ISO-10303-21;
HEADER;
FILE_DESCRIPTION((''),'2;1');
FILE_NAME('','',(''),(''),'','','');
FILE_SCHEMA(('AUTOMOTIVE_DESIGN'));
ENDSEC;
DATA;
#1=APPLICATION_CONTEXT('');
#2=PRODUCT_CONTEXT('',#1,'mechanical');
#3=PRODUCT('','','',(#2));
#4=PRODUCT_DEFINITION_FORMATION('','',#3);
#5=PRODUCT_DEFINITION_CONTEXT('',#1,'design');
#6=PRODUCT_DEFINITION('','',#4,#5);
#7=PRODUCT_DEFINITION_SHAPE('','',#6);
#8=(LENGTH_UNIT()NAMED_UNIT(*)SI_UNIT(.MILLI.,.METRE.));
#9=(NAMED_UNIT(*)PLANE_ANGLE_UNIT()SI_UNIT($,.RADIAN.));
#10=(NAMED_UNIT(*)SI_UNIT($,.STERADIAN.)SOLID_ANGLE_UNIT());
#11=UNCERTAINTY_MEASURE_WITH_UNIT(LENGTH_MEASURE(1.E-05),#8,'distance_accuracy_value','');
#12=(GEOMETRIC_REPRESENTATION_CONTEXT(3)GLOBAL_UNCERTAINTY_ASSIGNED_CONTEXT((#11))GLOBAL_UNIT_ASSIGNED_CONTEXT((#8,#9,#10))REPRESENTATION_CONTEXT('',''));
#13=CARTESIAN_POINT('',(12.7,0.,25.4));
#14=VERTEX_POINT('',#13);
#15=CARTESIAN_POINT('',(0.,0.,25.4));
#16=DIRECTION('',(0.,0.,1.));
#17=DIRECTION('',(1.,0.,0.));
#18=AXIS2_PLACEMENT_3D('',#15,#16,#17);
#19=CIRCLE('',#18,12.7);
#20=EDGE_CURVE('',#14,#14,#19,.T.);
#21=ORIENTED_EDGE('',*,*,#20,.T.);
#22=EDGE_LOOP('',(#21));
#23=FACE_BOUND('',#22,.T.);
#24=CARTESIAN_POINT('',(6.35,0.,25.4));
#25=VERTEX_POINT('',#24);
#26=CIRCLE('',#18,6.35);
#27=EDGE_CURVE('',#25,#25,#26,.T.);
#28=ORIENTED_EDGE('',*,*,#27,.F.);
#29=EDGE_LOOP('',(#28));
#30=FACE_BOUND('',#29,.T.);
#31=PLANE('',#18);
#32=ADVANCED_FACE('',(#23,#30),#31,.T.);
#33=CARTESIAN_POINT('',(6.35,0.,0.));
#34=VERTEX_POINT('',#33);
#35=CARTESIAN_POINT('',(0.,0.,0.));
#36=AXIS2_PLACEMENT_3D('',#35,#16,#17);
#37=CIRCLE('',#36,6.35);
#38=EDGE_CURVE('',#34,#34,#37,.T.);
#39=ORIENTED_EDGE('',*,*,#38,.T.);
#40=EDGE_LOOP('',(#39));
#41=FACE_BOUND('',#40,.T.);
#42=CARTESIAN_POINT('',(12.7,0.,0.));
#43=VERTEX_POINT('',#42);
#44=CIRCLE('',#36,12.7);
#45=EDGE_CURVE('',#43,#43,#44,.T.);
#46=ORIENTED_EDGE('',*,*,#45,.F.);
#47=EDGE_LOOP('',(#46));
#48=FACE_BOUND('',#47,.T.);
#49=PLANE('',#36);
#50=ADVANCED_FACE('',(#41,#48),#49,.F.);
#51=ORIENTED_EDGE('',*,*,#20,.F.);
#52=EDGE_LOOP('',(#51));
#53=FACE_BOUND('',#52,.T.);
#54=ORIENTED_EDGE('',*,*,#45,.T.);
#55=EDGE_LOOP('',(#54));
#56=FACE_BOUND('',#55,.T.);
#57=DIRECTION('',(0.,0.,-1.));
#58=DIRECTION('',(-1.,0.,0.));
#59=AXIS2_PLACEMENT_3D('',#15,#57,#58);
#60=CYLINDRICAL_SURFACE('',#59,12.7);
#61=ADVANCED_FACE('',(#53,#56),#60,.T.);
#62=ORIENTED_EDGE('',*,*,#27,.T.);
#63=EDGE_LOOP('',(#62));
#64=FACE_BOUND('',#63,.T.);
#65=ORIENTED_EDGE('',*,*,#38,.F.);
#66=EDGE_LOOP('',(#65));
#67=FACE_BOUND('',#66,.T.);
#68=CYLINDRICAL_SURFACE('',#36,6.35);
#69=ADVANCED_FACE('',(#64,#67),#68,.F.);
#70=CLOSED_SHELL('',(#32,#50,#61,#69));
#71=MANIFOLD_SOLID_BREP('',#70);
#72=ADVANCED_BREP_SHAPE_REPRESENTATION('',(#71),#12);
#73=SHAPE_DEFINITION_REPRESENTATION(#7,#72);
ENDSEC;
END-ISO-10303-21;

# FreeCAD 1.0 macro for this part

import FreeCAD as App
import Part
import Sketcher
Q = App.Units.Quantity

doc = App.newDocument("Part")
body = doc.addObject("PartDesign::Body", "Body")

sketch1 = body.newObject("Sketcher::SketchObject", "Sketch")
sketch1.AttachmentSupport = (doc.getObject("XY_Plane"), [""])
sketch1.MapMode = "FlatFace"
sketch1.addGeometry(Part.Circle(App.Vector(0, 0, 0), App.Vector(0, 0, 1), 13), False)
sketch1.addConstraint([
    Sketcher.Constraint("Coincident", 0, 3, -1, 1),
    Sketcher.Constraint("Diameter", 0, Q("1 in")),
])
pad1 = body.newObject("PartDesign::Pad", "Pad")
pad1.Profile = sketch1
pad1.Length = Q("1 in")

sketch2 = body.newObject("Sketcher::SketchObject", "Sketch001")
sketch2.AttachmentSupport = (doc.getObject("XY_Plane"), [""])
sketch2.MapMode = "FlatFace"
sketch2.AttachmentOffset = App.Placement(App.Vector(0, 0, 1 * 25.4), App.Rotation())
sketch2.addGeometry(Part.Circle(App.Vector(0, 0, 0), App.Vector(0, 0, 1), 6), False)
sketch2.addConstraint([
    Sketcher.Constraint("Coincident", 0, 3, -1, 1),
    Sketcher.Constraint("Diameter", 0, Q("0.5 in")),
])
pocket1 = body.newObject("PartDesign::Pocket", "Pocket")
pocket1.Profile = sketch2
pocket1.Length = Q("1 in")

doc.recompute()
